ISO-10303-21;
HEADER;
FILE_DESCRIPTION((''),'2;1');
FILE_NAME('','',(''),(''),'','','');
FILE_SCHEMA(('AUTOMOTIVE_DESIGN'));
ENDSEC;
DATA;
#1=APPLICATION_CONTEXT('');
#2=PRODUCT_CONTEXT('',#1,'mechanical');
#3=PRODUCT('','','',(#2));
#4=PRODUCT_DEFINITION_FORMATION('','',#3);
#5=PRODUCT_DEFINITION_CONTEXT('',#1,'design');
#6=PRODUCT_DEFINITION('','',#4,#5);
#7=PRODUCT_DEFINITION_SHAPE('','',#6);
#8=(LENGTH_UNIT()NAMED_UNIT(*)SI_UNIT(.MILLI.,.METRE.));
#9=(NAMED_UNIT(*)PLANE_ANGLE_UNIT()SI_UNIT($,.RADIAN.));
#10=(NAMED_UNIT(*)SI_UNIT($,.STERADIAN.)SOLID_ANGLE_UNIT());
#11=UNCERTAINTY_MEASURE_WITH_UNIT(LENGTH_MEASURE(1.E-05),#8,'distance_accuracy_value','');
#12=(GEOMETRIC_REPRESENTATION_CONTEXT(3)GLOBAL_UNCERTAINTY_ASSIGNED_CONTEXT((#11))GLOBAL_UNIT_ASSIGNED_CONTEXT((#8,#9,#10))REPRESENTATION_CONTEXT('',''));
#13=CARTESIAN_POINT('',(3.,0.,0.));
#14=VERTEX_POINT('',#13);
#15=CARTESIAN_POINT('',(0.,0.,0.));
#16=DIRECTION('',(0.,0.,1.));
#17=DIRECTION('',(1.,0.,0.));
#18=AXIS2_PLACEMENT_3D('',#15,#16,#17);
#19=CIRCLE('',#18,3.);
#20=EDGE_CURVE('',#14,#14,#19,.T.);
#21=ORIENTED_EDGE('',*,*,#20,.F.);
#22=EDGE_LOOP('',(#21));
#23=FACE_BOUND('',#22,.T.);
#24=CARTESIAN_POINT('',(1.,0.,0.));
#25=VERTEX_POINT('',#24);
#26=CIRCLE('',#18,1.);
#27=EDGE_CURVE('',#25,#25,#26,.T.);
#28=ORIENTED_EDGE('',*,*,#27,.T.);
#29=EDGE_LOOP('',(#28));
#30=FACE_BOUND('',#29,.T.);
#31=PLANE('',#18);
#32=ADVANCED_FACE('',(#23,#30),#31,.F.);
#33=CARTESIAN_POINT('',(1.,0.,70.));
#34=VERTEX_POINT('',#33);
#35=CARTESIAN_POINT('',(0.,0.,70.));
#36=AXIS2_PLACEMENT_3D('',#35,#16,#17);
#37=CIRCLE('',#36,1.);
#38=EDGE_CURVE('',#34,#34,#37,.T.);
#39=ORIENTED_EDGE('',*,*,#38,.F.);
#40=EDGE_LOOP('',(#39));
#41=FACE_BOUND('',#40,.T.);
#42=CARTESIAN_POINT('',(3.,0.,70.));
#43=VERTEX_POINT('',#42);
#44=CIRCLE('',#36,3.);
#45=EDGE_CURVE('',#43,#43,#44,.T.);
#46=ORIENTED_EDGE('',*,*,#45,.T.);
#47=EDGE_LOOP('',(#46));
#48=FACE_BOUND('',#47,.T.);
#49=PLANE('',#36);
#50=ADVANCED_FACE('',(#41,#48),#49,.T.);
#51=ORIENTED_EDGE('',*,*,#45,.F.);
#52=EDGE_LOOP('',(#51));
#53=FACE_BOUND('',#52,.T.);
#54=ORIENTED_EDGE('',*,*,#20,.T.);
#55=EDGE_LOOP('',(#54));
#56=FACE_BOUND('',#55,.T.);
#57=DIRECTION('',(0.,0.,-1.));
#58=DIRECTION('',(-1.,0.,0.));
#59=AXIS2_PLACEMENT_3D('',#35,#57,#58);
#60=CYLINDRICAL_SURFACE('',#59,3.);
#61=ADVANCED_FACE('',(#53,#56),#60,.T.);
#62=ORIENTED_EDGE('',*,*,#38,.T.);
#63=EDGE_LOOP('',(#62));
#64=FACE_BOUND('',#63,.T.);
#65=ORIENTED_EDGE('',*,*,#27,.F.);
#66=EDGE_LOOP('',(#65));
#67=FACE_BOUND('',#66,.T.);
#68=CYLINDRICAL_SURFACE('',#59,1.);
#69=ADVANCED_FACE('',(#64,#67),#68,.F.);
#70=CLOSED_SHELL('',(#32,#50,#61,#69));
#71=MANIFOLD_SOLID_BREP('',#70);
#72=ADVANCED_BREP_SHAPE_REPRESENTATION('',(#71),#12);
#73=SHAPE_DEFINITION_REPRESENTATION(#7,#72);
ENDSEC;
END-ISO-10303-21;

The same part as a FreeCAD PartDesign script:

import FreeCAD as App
import Part
import Sketcher
Q = App.Units.Quantity

doc = App.newDocument("Part")
body = doc.addObject("PartDesign::Body", "Body")

sketch1 = doc.addObject("Sketcher::SketchObject", "Sketch")
body.addObject(sketch1)
sketch1.AttachmentSupport = (doc.XY_Plane, [""])
sketch1.MapMode = "FlatFace"
sketch1.addGeometry(Part.Circle(App.Vector(0, 0, 0), App.Vector(0, 0, 1), 3), False)
sketch1.addGeometry(Part.Circle(App.Vector(0, 0, 0), App.Vector(0, 0, 1), 1), False)
sketch1.addConstraint(Sketcher.Constraint("Coincident", 0, 3, -1, 1))
sketch1.addConstraint(Sketcher.Constraint("Coincident", 1, 3, -1, 1))
sketch1.addConstraint(Sketcher.Constraint("Diameter", 0, Q("6 mm")))
sketch1.addConstraint(Sketcher.Constraint("Diameter", 1, Q("2 mm")))
pad1 = doc.addObject("PartDesign::Pad", "Pad")
body.addObject(pad1)
pad1.Profile = sketch1
pad1.Length = 70

doc.recompute()
